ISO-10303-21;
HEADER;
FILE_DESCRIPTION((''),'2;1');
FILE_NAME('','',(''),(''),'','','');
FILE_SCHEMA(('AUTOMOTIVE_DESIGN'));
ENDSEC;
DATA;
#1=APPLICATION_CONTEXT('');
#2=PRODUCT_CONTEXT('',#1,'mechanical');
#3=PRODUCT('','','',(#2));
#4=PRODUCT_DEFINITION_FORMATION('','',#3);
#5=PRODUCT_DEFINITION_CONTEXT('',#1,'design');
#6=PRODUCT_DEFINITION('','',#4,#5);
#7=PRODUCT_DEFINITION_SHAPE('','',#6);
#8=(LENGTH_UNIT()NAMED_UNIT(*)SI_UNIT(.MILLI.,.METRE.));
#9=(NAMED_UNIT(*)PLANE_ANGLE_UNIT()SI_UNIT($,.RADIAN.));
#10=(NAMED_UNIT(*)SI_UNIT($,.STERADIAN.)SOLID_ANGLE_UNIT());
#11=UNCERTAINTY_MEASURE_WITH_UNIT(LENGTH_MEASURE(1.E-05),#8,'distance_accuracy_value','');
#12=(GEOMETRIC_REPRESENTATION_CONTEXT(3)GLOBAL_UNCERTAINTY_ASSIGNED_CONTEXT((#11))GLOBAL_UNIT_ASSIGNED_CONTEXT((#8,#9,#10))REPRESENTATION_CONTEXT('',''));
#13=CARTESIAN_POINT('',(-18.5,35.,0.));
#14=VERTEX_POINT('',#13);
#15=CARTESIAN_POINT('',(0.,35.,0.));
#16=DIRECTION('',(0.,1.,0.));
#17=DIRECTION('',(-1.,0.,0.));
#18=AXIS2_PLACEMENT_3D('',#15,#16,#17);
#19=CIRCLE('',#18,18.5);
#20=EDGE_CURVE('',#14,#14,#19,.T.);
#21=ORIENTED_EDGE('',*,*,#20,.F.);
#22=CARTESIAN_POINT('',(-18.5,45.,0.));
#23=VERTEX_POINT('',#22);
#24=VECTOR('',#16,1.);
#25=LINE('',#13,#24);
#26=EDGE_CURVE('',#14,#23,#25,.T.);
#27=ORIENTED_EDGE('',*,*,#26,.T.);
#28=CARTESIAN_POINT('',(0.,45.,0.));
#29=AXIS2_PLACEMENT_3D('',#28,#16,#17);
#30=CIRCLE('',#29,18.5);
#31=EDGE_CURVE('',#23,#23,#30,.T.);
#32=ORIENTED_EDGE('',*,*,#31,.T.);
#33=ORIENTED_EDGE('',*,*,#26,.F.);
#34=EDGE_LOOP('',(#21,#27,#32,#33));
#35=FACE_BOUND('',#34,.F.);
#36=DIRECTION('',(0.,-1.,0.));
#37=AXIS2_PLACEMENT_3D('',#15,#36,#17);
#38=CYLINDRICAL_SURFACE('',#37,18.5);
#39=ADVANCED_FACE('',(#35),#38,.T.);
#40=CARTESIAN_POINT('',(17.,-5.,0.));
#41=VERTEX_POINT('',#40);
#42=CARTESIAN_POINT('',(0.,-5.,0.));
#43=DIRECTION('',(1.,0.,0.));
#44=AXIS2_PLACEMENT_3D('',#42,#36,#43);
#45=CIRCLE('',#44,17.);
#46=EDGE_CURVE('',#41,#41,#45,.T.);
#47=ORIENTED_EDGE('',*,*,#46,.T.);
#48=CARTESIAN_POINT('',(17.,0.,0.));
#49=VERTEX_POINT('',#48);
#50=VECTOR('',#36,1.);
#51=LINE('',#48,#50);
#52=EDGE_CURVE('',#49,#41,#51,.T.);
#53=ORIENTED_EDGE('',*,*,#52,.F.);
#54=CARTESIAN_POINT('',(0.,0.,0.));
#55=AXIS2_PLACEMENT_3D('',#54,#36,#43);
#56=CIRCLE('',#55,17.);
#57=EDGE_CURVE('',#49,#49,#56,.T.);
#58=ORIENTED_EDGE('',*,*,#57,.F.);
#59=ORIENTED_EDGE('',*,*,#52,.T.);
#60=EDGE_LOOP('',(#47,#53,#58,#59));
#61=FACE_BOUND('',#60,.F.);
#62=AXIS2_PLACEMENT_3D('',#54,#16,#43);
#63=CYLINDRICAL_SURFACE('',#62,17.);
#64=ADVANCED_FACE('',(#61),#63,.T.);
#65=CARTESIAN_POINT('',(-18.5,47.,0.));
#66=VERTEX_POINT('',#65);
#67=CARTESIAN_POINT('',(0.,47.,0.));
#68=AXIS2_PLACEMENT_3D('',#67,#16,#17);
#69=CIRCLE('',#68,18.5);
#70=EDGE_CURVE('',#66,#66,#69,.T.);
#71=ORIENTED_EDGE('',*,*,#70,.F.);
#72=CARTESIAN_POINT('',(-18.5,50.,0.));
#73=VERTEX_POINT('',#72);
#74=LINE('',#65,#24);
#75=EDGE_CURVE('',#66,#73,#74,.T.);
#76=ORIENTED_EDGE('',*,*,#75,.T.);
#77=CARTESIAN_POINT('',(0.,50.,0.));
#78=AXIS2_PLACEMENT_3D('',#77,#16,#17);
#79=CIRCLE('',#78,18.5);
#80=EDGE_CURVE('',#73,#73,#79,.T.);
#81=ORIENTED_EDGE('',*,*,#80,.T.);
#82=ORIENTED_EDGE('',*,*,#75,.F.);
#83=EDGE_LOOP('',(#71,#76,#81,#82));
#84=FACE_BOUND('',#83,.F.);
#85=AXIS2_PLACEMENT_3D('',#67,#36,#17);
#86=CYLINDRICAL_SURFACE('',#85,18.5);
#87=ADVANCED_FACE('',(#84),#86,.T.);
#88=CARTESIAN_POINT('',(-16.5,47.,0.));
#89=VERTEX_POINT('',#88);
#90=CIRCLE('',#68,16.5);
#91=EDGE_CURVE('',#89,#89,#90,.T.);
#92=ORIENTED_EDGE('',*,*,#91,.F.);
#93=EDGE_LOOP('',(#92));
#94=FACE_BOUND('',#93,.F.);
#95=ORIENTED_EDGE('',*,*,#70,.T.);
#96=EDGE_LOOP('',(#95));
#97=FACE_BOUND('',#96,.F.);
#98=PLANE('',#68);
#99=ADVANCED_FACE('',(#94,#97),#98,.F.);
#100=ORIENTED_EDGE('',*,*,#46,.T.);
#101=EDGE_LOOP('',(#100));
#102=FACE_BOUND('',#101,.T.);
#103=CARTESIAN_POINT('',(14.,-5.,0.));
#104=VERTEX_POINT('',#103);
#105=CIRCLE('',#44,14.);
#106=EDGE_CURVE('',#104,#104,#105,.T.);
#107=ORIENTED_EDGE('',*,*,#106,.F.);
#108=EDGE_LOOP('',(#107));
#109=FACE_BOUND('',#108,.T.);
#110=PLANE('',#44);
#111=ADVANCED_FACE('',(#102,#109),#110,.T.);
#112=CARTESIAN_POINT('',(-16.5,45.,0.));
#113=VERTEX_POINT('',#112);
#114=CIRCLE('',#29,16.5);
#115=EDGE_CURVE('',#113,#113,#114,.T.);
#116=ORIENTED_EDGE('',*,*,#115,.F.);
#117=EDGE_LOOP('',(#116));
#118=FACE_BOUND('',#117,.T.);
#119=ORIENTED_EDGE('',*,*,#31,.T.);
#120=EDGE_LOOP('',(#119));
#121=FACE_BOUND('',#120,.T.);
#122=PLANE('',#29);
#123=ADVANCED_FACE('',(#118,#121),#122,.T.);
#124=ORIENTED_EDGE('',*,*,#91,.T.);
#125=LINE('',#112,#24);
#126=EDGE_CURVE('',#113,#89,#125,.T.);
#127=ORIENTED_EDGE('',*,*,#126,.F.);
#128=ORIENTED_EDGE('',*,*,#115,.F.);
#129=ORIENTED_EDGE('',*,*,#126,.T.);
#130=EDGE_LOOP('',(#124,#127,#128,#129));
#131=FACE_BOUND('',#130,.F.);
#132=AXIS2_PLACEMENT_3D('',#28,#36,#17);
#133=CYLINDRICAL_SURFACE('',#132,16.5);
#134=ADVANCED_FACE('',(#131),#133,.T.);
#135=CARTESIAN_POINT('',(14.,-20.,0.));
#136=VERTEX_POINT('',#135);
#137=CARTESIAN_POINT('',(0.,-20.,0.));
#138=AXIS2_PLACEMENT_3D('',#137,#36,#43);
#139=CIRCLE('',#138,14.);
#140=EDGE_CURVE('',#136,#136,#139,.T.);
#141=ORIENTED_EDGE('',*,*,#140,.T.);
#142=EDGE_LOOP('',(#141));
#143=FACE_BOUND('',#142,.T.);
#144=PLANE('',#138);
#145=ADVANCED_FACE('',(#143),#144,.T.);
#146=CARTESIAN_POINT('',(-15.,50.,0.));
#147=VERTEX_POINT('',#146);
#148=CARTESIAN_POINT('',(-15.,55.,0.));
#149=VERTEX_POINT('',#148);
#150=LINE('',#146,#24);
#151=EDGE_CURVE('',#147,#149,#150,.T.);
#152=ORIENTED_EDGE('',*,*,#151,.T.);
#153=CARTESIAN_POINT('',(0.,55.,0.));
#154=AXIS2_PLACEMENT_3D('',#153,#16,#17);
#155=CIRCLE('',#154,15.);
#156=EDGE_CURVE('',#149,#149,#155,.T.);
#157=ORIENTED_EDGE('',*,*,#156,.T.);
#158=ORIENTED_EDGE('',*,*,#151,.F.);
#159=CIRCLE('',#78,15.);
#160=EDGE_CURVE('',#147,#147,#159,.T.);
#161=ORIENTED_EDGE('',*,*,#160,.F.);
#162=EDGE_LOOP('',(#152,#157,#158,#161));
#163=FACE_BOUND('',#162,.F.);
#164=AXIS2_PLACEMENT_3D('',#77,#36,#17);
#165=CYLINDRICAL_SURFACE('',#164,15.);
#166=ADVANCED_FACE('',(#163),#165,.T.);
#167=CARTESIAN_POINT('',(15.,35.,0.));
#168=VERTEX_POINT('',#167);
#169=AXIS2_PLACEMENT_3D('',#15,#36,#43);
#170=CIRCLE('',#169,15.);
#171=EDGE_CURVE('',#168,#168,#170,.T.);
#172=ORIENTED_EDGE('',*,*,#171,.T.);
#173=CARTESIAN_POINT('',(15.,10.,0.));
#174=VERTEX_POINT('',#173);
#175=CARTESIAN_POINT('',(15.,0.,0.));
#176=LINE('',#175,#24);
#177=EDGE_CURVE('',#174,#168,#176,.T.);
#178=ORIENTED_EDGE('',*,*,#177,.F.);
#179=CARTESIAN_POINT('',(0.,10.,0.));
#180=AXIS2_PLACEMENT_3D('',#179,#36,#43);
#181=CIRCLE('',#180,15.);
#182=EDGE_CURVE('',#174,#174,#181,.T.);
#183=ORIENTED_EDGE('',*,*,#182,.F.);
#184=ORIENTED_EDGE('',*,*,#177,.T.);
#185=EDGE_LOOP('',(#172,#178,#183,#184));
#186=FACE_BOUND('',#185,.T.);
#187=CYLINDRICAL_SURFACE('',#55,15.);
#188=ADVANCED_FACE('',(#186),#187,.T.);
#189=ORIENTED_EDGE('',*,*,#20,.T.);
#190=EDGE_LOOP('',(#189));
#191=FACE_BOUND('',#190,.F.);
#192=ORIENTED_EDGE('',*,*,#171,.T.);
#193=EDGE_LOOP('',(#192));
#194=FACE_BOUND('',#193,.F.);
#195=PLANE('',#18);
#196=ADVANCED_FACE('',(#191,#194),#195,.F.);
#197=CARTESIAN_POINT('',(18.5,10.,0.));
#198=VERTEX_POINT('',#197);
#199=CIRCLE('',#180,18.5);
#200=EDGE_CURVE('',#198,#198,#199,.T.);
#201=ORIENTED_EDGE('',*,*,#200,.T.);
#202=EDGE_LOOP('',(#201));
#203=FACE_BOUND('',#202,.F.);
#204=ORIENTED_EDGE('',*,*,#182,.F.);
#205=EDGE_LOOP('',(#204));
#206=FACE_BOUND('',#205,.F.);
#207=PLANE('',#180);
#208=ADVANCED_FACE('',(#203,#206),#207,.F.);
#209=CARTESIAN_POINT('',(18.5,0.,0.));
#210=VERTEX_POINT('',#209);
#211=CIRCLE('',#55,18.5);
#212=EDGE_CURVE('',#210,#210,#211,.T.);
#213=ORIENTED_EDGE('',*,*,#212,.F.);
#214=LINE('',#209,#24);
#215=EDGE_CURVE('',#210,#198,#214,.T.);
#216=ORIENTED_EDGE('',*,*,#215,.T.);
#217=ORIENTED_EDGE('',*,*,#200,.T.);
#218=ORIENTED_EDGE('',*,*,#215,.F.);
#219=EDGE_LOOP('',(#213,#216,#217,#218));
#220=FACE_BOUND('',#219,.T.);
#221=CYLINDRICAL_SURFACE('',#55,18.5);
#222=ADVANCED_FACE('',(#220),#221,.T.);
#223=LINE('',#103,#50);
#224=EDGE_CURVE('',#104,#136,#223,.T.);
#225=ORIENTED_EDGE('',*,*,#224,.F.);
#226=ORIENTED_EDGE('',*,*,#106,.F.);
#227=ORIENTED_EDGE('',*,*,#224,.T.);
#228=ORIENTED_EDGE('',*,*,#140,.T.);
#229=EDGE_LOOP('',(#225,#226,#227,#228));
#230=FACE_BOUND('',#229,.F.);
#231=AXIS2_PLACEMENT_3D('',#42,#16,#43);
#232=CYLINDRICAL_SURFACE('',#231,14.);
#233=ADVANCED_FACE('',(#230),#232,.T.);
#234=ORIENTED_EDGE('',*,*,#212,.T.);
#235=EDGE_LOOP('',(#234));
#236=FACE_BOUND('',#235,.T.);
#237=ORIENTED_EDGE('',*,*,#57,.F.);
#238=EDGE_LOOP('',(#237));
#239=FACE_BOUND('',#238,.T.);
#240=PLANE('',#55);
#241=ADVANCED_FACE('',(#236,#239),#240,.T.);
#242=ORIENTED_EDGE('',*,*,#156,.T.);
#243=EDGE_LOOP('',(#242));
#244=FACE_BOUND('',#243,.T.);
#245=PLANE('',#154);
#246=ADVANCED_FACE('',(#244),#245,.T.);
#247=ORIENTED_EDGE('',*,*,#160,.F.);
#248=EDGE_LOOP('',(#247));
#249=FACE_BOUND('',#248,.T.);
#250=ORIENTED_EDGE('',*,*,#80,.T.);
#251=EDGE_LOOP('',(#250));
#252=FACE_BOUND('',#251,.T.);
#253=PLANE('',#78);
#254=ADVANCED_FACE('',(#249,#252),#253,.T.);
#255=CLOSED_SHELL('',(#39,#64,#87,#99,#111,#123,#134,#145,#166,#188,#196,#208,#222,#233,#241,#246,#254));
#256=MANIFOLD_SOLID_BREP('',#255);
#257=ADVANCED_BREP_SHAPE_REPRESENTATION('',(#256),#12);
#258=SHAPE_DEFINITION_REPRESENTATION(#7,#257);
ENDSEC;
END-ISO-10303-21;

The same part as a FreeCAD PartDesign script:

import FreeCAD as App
import Part
import Sketcher
from FreeCAD import Vector

doc = App.newDocument("Part")
params = doc.addObject("Spreadsheet::Sheet", "Params")
for row, (alias, value) in enumerate([
    ("sketch1_diameter", "34 mm"),
    ("pad1_length", "5 mm"),
    ("sketch2_diameter", "28 mm"),
    ("pad2_length", "15 mm"),
    ("sketch3_diameter", "37 mm"),
    ("pad3_length", "10 mm"),
    ("sketch4_diameter", "30 mm"),
    ("pad4_length", "35 mm"),
    ("sketch5_diameter", "37 mm"),
    ("pad5_length", "10 mm"),
    ("sketch6_diameter", "33 mm"),
    ("pad6_length", "2 mm"),
    ("sketch7_diameter", "37 mm"),
    ("pad7_length", "3 mm"),
    ("sketch8_diameter", "30 mm"),
    ("pad8_length", "5 mm"),
], start=1):
    params.set(f"A{row}", alias)
    params.set(f"B{row}", "=" + value)
    params.setAlias(f"B{row}", alias)

body = doc.addObject("PartDesign::Body", "Body")

# Sketch on XZ plane
sketch1 = doc.addObject("Sketcher::SketchObject", "Sketch")
body.addObject(sketch1)
sketch1.AttachmentSupport = (doc.XZ_Plane, [""])
sketch1.MapMode = "FlatFace"
sketch1.addGeometry(Part.Circle(Vector(0, 0, 0), Vector(0, 0, 1), 17), False)
sketch1.addConstraint([
    Sketcher.Constraint("Coincident", 0, 3, -1, 1),
    Sketcher.Constraint("Diameter", 0, 34.0),
])
sketch1.setExpression("Constraints[1]", "Params.sketch1_diameter")
pad1 = doc.addObject("PartDesign::Pad", "Pad")
body.addObject(pad1)
pad1.Profile = sketch1
pad1.setExpression("Length", "Params.pad1_length")

# Sketch on XZ plane
sketch2 = doc.addObject("Sketcher::SketchObject", "Sketch001")
body.addObject(sketch2)
sketch2.AttachmentSupport = (doc.XZ_Plane, [""])
sketch2.MapMode = "FlatFace"
sketch2.AttachmentOffset = App.Placement(Vector(0, 0, 5), App.Rotation())
sketch2.addGeometry(Part.Circle(Vector(0, 0, 0), Vector(0, 0, 1), 14), False)
sketch2.addConstraint([
    Sketcher.Constraint("Coincident", 0, 3, -1, 1),
    Sketcher.Constraint("Diameter", 0, 28.0),
])
sketch2.setExpression("Constraints[1]", "Params.sketch2_diameter")
pad2 = doc.addObject("PartDesign::Pad", "Pad001")
body.addObject(pad2)
pad2.Profile = sketch2
pad2.setExpression("Length", "Params.pad2_length")

# Sketch on XZ plane
sketch3 = doc.addObject("Sketcher::SketchObject", "Sketch002")
body.addObject(sketch3)
sketch3.AttachmentSupport = (doc.XZ_Plane, [""])
sketch3.MapMode = "FlatFace"
sketch3.addGeometry(Part.Circle(Vector(0, 0, 0), Vector(0, 0, 1), 18), False)
sketch3.addConstraint([
    Sketcher.Constraint("Coincident", 0, 3, -1, 1),
    Sketcher.Constraint("Diameter", 0, 37.0),
])
sketch3.setExpression("Constraints[1]", "Params.sketch3_diameter")
pad3 = doc.addObject("PartDesign::Pad", "Pad002")
body.addObject(pad3)
pad3.Profile = sketch3
pad3.setExpression("Length", "Params.pad3_length")
pad3.Reversed = True

# Sketch on XZ plane
sketch4 = doc.addObject("Sketcher::SketchObject", "Sketch003")
body.addObject(sketch4)
sketch4.AttachmentSupport = (doc.XZ_Plane, [""])
sketch4.MapMode = "FlatFace"
sketch4.addGeometry(Part.Circle(Vector(0, 0, 0), Vector(0, 0, 1), 15), False)
sketch4.addConstraint([
    Sketcher.Constraint("Coincident", 0, 3, -1, 1),
    Sketcher.Constraint("Diameter", 0, 30.0),
])
sketch4.setExpression("Constraints[1]", "Params.sketch4_diameter")
pad4 = doc.addObject("PartDesign::Pad", "Pad003")
body.addObject(pad4)
pad4.Profile = sketch4
pad4.setExpression("Length", "Params.pad4_length")
pad4.Reversed = True

# Sketch on XZ plane
sketch5 = doc.addObject("Sketcher::SketchObject", "Sketch004")
body.addObject(sketch5)
sketch5.AttachmentSupport = (doc.XZ_Plane, [""])
sketch5.MapMode = "FlatFace"
sketch5.AttachmentOffset = App.Placement(Vector(0, 0, -35), App.Rotation())
sketch5.addGeometry(Part.Circle(Vector(0, 0, 0), Vector(0, 0, 1), 18), False)
sketch5.addConstraint([
    Sketcher.Constraint("Coincident", 0, 3, -1, 1),
    Sketcher.Constraint("Diameter", 0, 37.0),
])
sketch5.setExpression("Constraints[1]", "Params.sketch5_diameter")
pad5 = doc.addObject("PartDesign::Pad", "Pad004")
body.addObject(pad5)
pad5.Profile = sketch5
pad5.setExpression("Length", "Params.pad5_length")
pad5.Reversed = True

# Sketch on XZ plane
sketch6 = doc.addObject("Sketcher::SketchObject", "Sketch005")
body.addObject(sketch6)
sketch6.AttachmentSupport = (doc.XZ_Plane, [""])
sketch6.MapMode = "FlatFace"
sketch6.AttachmentOffset = App.Placement(Vector(0, 0, -45), App.Rotation())
sketch6.addGeometry(Part.Circle(Vector(0, 0, 0), Vector(0, 0, 1), 16), False)
sketch6.addConstraint([
    Sketcher.Constraint("Coincident", 0, 3, -1, 1),
    Sketcher.Constraint("Diameter", 0, 33.0),
])
sketch6.setExpression("Constraints[1]", "Params.sketch6_diameter")
pad6 = doc.addObject("PartDesign::Pad", "Pad005")
body.addObject(pad6)
pad6.Profile = sketch6
pad6.setExpression("Length", "Params.pad6_length")
pad6.Reversed = True

# Sketch on XZ plane
sketch7 = doc.addObject("Sketcher::SketchObject", "Sketch006")
body.addObject(sketch7)
sketch7.AttachmentSupport = (doc.XZ_Plane, [""])
sketch7.MapMode = "FlatFace"
sketch7.AttachmentOffset = App.Placement(Vector(0, 0, -47), App.Rotation())
sketch7.addGeometry(Part.Circle(Vector(0, 0, 0), Vector(0, 0, 1), 18), False)
sketch7.addConstraint([
    Sketcher.Constraint("Coincident", 0, 3, -1, 1),
    Sketcher.Constraint("Diameter", 0, 37.0),
])
sketch7.setExpression("Constraints[1]", "Params.sketch7_diameter")
pad7 = doc.addObject("PartDesign::Pad", "Pad006")
body.addObject(pad7)
pad7.Profile = sketch7
pad7.setExpression("Length", "Params.pad7_length")
pad7.Reversed = True

# Sketch on XZ plane
sketch8 = doc.addObject("Sketcher::SketchObject", "Sketch007")
body.addObject(sketch8)
sketch8.AttachmentSupport = (doc.XZ_Plane, [""])
sketch8.MapMode = "FlatFace"
sketch8.AttachmentOffset = App.Placement(Vector(0, 0, -50), App.Rotation())
sketch8.addGeometry(Part.Circle(Vector(0, 0, 0), Vector(0, 0, 1), 15), False)
sketch8.addConstraint([
    Sketcher.Constraint("Coincident", 0, 3, -1, 1),
    Sketcher.Constraint("Diameter", 0, 30.0),
])
sketch8.setExpression("Constraints[1]", "Params.sketch8_diameter")
pad8 = doc.addObject("PartDesign::Pad", "Pad007")
body.addObject(pad8)
pad8.Profile = sketch8
pad8.setExpression("Length", "Params.pad8_length")
pad8.Reversed = True

doc.recompute()
